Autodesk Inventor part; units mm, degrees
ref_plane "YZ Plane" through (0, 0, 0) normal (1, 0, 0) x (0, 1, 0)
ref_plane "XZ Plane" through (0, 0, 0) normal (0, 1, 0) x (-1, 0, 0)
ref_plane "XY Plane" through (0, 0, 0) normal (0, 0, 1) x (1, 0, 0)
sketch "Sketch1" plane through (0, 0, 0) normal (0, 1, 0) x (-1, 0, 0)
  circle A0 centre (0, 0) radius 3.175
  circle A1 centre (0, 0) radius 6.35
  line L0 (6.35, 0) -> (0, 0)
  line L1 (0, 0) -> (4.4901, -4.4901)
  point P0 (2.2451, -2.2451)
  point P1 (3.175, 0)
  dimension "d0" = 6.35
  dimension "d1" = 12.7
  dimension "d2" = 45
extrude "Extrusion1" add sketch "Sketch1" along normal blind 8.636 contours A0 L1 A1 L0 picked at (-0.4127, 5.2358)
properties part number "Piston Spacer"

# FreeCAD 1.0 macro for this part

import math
import FreeCAD as App
import Part
import Sketcher
from FreeCAD import Vector
Q = App.Units.Quantity

doc = App.newDocument("Part")
body = doc.addObject("PartDesign::Body", "Body")

# Sketch on XZ plane
sketch1 = body.newObject("Sketcher::SketchObject", "Sketch")
sketch1.AttachmentSupport = (doc.getObject("XZ_Plane"), [""])
sketch1.MapMode = "FlatFace"
sketch1.addGeometry([
    Part.ArcOfCircle(Part.Circle(Vector(0, 0, 0), Vector(0, 0, 1), 3.2), math.radians(-135), math.radians(180)),
    Part.LineSegment(Vector(-3.2, 0, 0), Vector(-6.3, 0, 0)),
    Part.ArcOfCircle(Part.Circle(Vector(0, 0, 0), Vector(0, 0, 1), 6.3), math.radians(-135), math.radians(180)),
    Part.LineSegment(Vector(-4.5, -4.5, 0), Vector(-2.2, -2.2, 0)),
], False)
sketch1.addConstraint([
    Sketcher.Constraint("Coincident", 0, 2, 1, 1),
    Sketcher.Constraint("Coincident", 1, 2, 2, 2),
    Sketcher.Constraint("Coincident", 2, 1, 3, 1),
    Sketcher.Constraint("Coincident", 3, 2, 0, 1),
    Sketcher.Constraint("Horizontal", 1),
    Sketcher.Constraint("Coincident", 0, 3, -1, 1),
    Sketcher.Constraint("Coincident", 2, 3, -1, 1),
    Sketcher.Constraint("PointOnObject", 0, 2, -1),
    Sketcher.Constraint("Radius", 2, Q("0.25 in")),
    Sketcher.Constraint("Angle", 3, Q("45 deg")),
    Sketcher.Constraint("Radius", 0, Q("0.125 in")),
    Sketcher.Constraint("DistanceX", 3, 2, -1, 1, Q("0.0884 in")),
])
pad1 = body.newObject("PartDesign::Pad", "Pad")
pad1.Profile = sketch1
pad1.Length = Q("0.34 in")
pad1.Reversed = True

doc.recompute()
